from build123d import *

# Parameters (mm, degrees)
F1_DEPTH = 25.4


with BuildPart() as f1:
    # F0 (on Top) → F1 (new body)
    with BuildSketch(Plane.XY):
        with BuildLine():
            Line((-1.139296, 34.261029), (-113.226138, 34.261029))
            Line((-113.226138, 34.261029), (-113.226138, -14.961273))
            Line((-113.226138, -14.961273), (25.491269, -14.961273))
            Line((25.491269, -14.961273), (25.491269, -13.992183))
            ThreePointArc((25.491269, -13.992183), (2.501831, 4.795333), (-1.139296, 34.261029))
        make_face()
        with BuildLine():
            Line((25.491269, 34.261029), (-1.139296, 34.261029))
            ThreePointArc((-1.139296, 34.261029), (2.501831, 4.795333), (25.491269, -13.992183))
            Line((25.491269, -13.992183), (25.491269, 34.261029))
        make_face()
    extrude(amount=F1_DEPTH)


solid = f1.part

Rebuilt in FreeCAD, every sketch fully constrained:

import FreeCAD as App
import Part
import Sketcher
from FreeCAD import Vector
Q = App.Units.Quantity


def add_polygon(sketch, points):
    """Adds a closed chain of lines whose ends are joined by coincident constraints."""
    first, n = sketch.GeometryCount, len(points)
    for a, b in zip(points, points[1:] + points[:1]):
        sketch.addGeometry(Part.LineSegment(App.Vector(*a, 0), App.Vector(*b, 0)), False)
    for i in range(n):
        sketch.addConstraint(Sketcher.Constraint("Coincident", first + i, 2, first + (i + 1) % n, 1))

doc = App.newDocument("Part")
body = doc.addObject("PartDesign::Body", "Body")

# Sketch on XY plane
sketch1 = body.newObject("Sketcher::SketchObject", "Sketch")
sketch1.AttachmentSupport = (doc.getObject("XY_Plane"), [""])
sketch1.MapMode = "FlatFace"
add_polygon(sketch1, [(-113.226138, 34.261029), (-113.226138, -14.961273), (25.491269, -14.961273), (25.491269, 34.261029)])  # lines 0-3
sketch1.addConstraint(Sketcher.Constraint("Vertical", 0))
sketch1.addConstraint(Sketcher.Constraint("Horizontal", 1))
sketch1.addConstraint(Sketcher.Constraint("Vertical", 2))
sketch1.addConstraint(Sketcher.Constraint("Horizontal", 3))
sketch1.addConstraint(Sketcher.Constraint("DistanceX", 1, 1, 1, 2, 138.717407))
sketch1.addConstraint(Sketcher.Constraint("DistanceY", 0, 2, 0, 1, 49.222302))
sketch1.addConstraint(Sketcher.Constraint("DistanceX", 0, 2, -1, 1, 113.226138))
sketch1.addConstraint(Sketcher.Constraint("DistanceY", -1, 1, 2, 2, 34.261029))
pad1 = body.newObject("PartDesign::Pad", "Pad")
pad1.Profile = sketch1
pad1.Length = Q("1 in")

doc.recompute()
